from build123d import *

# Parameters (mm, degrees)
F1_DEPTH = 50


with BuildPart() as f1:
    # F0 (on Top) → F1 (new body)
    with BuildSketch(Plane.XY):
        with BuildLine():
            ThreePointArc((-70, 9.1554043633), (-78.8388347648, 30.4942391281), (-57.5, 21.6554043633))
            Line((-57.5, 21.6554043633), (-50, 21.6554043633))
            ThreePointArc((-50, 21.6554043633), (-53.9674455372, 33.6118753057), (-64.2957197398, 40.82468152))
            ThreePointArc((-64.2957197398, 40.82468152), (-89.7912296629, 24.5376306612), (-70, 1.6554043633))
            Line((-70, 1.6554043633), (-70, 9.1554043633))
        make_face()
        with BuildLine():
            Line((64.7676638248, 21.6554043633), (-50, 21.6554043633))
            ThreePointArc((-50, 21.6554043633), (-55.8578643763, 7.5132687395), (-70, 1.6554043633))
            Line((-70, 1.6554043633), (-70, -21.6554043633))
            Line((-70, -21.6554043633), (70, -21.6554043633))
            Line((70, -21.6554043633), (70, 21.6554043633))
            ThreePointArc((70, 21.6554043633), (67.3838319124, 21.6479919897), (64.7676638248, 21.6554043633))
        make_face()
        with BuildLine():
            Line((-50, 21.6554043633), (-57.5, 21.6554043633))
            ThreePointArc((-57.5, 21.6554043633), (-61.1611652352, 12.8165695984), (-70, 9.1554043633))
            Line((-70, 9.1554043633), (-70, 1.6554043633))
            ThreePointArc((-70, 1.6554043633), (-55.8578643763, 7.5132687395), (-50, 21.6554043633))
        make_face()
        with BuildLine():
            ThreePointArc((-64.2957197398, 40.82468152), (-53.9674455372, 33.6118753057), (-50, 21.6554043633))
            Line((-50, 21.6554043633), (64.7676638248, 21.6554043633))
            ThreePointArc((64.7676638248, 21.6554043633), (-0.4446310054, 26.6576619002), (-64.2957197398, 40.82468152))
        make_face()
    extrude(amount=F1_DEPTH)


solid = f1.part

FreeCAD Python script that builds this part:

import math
import FreeCAD as App
import Part
import Sketcher
from FreeCAD import Vector
Q = App.Units.Quantity

doc = App.newDocument("Part")
params = doc.addObject("Spreadsheet::Sheet", "Params")
for row, (alias, value) in enumerate([
    ("sketch1_radius", "20 mm"),
    ("sketch1_radius2", "12.5 mm"),
    ("sketch1_width", "140 mm"),
    ("pad1_length", "50 mm"),
], start=1):
    params.set(f"A{row}", alias)
    params.set(f"B{row}", "=" + value)
    params.setAlias(f"B{row}", alias)

body = doc.addObject("PartDesign::Body", "Body")

# Sketch on XY plane
sketch1 = doc.addObject("Sketcher::SketchObject", "Sketch")
body.addObject(sketch1)
sketch1.AttachmentSupport = (doc.XY_Plane, [""])
sketch1.MapMode = "FlatFace"
sketch1.addGeometry([
    Part.ArcOfCircle(Part.Circle(Vector(-70, 21.655404, 0), Vector(0, 0, 1), 20), math.radians(73.428358), math.radians(270)),  # 0
    Part.LineSegment(Vector(-70, 1.655404, 0), Vector(-70, -21.655404, 0)),  # 1
    Part.LineSegment(Vector(-70, -21.655404, 0), Vector(70, -21.655404, 0)),  # 2
    Part.LineSegment(Vector(70, -21.655404, 0), Vector(70, 21.655404, 0)),  # 3
    Part.ArcOfCircle(Part.Circle(Vector(67.383832, 483.334813, 0), Vector(0, 0, 1), 461.686821), math.radians(-90.324671), math.radians(-89.675329)),  # 4
    Part.ArcOfCircle(Part.Circle(Vector(67.383832, 483.334815, 0), Vector(0, 0, 1), 461.686823), math.radians(-106.571642), math.radians(-90.324671)),  # 5
    Part.ArcOfCircle(Part.Circle(Vector(-70, 21.655404, 0), Vector(0, 0, 1), 12.5), math.radians(0), math.radians(270)),  # 6
    Part.ArcOfCircle(Part.Circle(Vector(-70, 21.655404, 0), Vector(0, 0, 1), 12.5), math.radians(-90), math.radians(0)),  # 7
], False)
sketch1.addConstraint([
    Sketcher.Constraint("Coincident", 0, 2, 1, 1),
    Sketcher.Constraint("Coincident", 1, 2, 2, 1),
    Sketcher.Constraint("Coincident", 2, 2, 3, 1),
    Sketcher.Constraint("Coincident", 3, 2, 4, 2),
    Sketcher.Constraint("Tangent", 4, 1, 5, 2),
    Sketcher.Constraint("Tangent", 5, 1, 0, 1),
    Sketcher.Constraint("Tangent", 6, 1, 7, 2),
    Sketcher.Constraint("Coincident", 7, 1, 6, 2),
    Sketcher.Constraint("Vertical", 1),
    Sketcher.Constraint("Horizontal", 2),
    Sketcher.Constraint("Vertical", 3),
    Sketcher.Constraint("Coincident", 6, 3, 0, 3),
    Sketcher.Constraint("Symmetric", 1, 2, 3, 2, -1, 1),
    Sketcher.Constraint("Horizontal", 7, 3, 3, 2),
    Sketcher.Constraint("Horizontal", 3, 2, 4, 1),
    Sketcher.Constraint("Horizontal", 4, 1, 6, 1),
    Sketcher.Constraint("Vertical", 7, 3, 0, 2),
    Sketcher.Constraint("Vertical", 1, 2, 7, 1),
    Sketcher.Constraint("Radius", 0, Q("20 mm")),
    Sketcher.Constraint("Radius", 6, Q("12.5 mm")),
    Sketcher.Constraint("DistanceX", 2, 1, 2, 2, Q("140 mm")),
    Sketcher.Constraint("Radius", 4, Q("461.686821 mm")),
    Sketcher.Constraint("Radius", 5, Q("461.686823 mm")),
    Sketcher.Constraint("DistanceY", 1, 2, 1, 1, Q("23.310809 mm")),
])
sketch1.setExpression("Constraints[18]", "Params.sketch1_radius")
sketch1.setExpression("Constraints[19]", "Params.sketch1_radius2")
sketch1.setExpression("Constraints[20]", "Params.sketch1_width")
pad1 = doc.addObject("PartDesign::Pad", "Pad")
body.addObject(pad1)
pad1.Profile = sketch1
pad1.setExpression("Length", "Params.pad1_length")

doc.recompute()
